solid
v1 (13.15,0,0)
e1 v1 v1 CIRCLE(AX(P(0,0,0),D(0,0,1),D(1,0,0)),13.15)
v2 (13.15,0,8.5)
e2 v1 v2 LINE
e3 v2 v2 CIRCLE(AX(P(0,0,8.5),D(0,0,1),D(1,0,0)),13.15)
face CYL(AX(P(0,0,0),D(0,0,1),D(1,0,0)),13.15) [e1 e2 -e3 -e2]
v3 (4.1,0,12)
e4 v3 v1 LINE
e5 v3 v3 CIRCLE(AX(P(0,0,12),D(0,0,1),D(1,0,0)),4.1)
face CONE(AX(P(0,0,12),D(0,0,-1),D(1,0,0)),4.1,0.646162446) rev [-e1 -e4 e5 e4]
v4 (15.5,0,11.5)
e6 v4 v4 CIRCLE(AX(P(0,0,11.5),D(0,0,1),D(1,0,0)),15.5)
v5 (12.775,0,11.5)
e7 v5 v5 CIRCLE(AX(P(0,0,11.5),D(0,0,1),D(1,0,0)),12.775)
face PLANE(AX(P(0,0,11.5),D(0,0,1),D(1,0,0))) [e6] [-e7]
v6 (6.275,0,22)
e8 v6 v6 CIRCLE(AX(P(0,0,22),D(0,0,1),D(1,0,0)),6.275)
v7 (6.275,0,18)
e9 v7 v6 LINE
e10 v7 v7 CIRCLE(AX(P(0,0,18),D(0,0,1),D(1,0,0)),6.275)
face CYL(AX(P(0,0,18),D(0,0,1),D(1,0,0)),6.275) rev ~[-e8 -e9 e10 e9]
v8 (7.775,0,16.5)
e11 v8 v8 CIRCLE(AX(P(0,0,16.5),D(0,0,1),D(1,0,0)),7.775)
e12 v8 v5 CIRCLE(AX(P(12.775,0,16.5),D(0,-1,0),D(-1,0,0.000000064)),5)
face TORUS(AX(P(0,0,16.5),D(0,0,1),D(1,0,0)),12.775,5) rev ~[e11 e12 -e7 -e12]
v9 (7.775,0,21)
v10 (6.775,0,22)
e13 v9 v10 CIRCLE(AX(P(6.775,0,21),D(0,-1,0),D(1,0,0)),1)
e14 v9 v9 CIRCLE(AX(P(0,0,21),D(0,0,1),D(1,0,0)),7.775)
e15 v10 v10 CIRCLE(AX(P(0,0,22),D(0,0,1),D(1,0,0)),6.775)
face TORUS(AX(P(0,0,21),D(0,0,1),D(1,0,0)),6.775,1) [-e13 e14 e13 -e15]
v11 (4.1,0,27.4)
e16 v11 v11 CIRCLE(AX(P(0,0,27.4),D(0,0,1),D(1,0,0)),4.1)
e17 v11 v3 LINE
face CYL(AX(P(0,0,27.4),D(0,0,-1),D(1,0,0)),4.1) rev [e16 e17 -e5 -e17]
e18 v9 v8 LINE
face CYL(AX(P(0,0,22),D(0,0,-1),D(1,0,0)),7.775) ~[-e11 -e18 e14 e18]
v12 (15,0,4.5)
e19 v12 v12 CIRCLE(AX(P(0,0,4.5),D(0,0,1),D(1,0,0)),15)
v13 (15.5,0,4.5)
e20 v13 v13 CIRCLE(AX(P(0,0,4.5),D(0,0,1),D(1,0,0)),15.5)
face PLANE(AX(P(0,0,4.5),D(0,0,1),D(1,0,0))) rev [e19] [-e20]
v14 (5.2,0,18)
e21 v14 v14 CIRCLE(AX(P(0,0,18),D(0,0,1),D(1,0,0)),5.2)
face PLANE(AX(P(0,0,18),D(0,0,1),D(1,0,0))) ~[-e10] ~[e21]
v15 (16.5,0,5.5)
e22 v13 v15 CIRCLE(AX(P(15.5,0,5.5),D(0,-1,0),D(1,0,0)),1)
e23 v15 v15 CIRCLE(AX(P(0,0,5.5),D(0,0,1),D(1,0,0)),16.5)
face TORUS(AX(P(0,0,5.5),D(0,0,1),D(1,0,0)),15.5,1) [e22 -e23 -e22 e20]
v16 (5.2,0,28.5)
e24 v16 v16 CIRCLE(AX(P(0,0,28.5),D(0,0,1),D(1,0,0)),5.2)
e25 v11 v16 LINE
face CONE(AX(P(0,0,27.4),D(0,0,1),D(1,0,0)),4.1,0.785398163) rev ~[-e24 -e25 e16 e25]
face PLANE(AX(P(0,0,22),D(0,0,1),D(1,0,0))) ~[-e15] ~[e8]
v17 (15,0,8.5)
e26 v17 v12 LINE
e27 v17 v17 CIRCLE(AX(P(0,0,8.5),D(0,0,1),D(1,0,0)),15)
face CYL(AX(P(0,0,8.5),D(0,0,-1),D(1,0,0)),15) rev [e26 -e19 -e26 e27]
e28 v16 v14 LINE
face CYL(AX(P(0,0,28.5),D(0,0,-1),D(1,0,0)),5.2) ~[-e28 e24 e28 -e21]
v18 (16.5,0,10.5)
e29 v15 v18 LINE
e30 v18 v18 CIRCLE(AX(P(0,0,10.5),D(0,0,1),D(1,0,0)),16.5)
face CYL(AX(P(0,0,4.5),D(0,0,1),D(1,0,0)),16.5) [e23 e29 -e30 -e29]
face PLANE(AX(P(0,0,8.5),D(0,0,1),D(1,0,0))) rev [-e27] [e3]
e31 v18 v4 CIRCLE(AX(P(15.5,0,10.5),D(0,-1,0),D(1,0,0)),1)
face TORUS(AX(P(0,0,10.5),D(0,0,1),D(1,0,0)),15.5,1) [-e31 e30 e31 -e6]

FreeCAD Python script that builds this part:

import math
import FreeCAD as App
import Part
import Sketcher
from FreeCAD import Vector
Q = App.Units.Quantity


def edges_at(feature, points):
    """Names of the edges that pass closest to the given points."""
    edges = feature.Shape.Edges
    near = lambda p: min(range(len(edges)), key=lambda i: edges[i].distToShape(Part.Vertex(*p))[0])
    return sorted({f"Edge{near(p) + 1}" for p in points})

doc = App.newDocument("Part")
body = doc.addObject("PartDesign::Body", "Body")

sketch1 = doc.addObject("Sketcher::SketchObject", "Sketch")
body.addObject(sketch1)
sketch1.AttachmentSupport = (doc.XZ_Plane, [""])
sketch1.MapMode = "FlatFace"
sketch1.addGeometry([
    Part.LineSegment(Vector(4.1, 27.4, 0), Vector(4.1, 12, 0)),
    Part.LineSegment(Vector(4.1, 12, 0), Vector(13.15, 0, 0)),
    Part.LineSegment(Vector(13.15, 0, 0), Vector(13.15, 8.5, 0)),
    Part.LineSegment(Vector(13.15, 8.5, 0), Vector(15, 8.5, 0)),
    Part.LineSegment(Vector(15, 8.5, 0), Vector(15, 4.5, 0)),
    Part.LineSegment(Vector(15, 4.5, 0), Vector(16.5, 4.5, 0)),
    Part.LineSegment(Vector(16.5, 4.5, 0), Vector(16.5, 11.5, 0)),
    Part.LineSegment(Vector(16.5, 11.5, 0), Vector(12.775, 11.5, 0)),
    Part.ArcOfCircle(Part.Circle(Vector(12.775, 16.5, 0), Vector(0, 0, 1), 5), math.radians(179.999996), math.radians(270.000004)),
    Part.LineSegment(Vector(7.775, 16.5, 0), Vector(7.775, 22, 0)),
    Part.LineSegment(Vector(7.775, 22, 0), Vector(6.275, 22, 0)),
    Part.LineSegment(Vector(6.275, 22, 0), Vector(6.275, 18, 0)),
    Part.LineSegment(Vector(6.275, 18, 0), Vector(5.2, 18, 0)),
    Part.LineSegment(Vector(5.2, 18, 0), Vector(5.2, 28.5, 0)),
    Part.LineSegment(Vector(5.2, 28.5, 0), Vector(4.1, 27.4, 0)),
], False)
sketch1.addConstraint([
    Sketcher.Constraint("Coincident", 0, 2, 1, 1),
    Sketcher.Constraint("Coincident", 1, 2, 2, 1),
    Sketcher.Constraint("Coincident", 2, 2, 3, 1),
    Sketcher.Constraint("Coincident", 3, 2, 4, 1),
    Sketcher.Constraint("Coincident", 4, 2, 5, 1),
    Sketcher.Constraint("Coincident", 5, 2, 6, 1),
    Sketcher.Constraint("Coincident", 6, 2, 7, 1),
    Sketcher.Constraint("Tangent", 7, 2, 8, 2),
    Sketcher.Constraint("Tangent", 8, 1, 9, 1),
    Sketcher.Constraint("Coincident", 9, 2, 10, 1),
    Sketcher.Constraint("Coincident", 10, 2, 11, 1),
    Sketcher.Constraint("Coincident", 11, 2, 12, 1),
    Sketcher.Constraint("Coincident", 12, 2, 13, 1),
    Sketcher.Constraint("Coincident", 13, 2, 14, 1),
    Sketcher.Constraint("Coincident", 14, 2, 0, 1),
    Sketcher.Constraint("Vertical", 0),
    Sketcher.Constraint("Vertical", 2),
    Sketcher.Constraint("Horizontal", 3),
    Sketcher.Constraint("Vertical", 4),
    Sketcher.Constraint("Horizontal", 5),
    Sketcher.Constraint("Vertical", 6),
    Sketcher.Constraint("Horizontal", 7),
    Sketcher.Constraint("Vertical", 9),
    Sketcher.Constraint("Horizontal", 10),
    Sketcher.Constraint("Vertical", 11),
    Sketcher.Constraint("Horizontal", 12),
    Sketcher.Constraint("Vertical", 13),
    Sketcher.Constraint("PointOnObject", 1, 2, -1),
    Sketcher.Constraint("Equal", 5, 10),
    Sketcher.Constraint("Equal", 4, 11),
    Sketcher.Constraint("Radius", 8, 5.0),
    Sketcher.Constraint("DistanceY", 4, 2, 4, 1, 4.0),
    Sketcher.Constraint("DistanceY", 6, 1, 6, 2, 7.0),
    Sketcher.Constraint("Angle", 14, Q("-135 deg")),
    Sketcher.Constraint("DistanceX", 5, 1, 5, 2, 1.5),
    Sketcher.Constraint("DistanceY", 0, 2, 0, 1, 15.4),
    Sketcher.Constraint("DistanceY", 2, 1, 2, 2, 8.5),
    Sketcher.Constraint("DistanceY", 9, 1, 9, 2, 5.5),
    Sketcher.Constraint("DistanceY", 13, 1, 13, 2, 10.5),
    Sketcher.Constraint("DistanceY", -1, 1, 0, 2, 12.0),
    Sketcher.Constraint("DistanceX", -1, 1, 3, 2, 15.0),
    Sketcher.Constraint("DistanceX", 3, 1, 3, 2, 1.85),
    Sketcher.Constraint("DistanceX", -1, 1, 0, 2, 4.1),
    Sketcher.Constraint("DistanceX", 7, 2, 7, 1, 3.725),
])
revolution = doc.addObject("PartDesign::Revolution", "Revolution")
body.addObject(revolution)
revolution.Profile = sketch1
revolution.ReferenceAxis = (sketch1, ["V_Axis"])
revolution.Angle = 360
doc.recompute()

fillet = doc.addObject("PartDesign::Fillet", "Fillet")
body.addObject(fillet)
fillet.Base = (revolution, edges_at(revolution, [(-16.5, 0, 4.5)]))
fillet.Radius = 1
doc.recompute()

fillet2 = doc.addObject("PartDesign::Fillet", "Fillet001")
body.addObject(fillet2)
fillet2.Base = (fillet, edges_at(fillet, [(-16.5, 0, 11.5)]))
fillet2.Radius = 1
doc.recompute()

fillet3 = doc.addObject("PartDesign::Fillet", "Fillet002")
body.addObject(fillet3)
fillet3.Base = (fillet2, edges_at(fillet2, [(-7.775, 0, 22)]))
fillet3.Radius = 1

doc.recompute()
